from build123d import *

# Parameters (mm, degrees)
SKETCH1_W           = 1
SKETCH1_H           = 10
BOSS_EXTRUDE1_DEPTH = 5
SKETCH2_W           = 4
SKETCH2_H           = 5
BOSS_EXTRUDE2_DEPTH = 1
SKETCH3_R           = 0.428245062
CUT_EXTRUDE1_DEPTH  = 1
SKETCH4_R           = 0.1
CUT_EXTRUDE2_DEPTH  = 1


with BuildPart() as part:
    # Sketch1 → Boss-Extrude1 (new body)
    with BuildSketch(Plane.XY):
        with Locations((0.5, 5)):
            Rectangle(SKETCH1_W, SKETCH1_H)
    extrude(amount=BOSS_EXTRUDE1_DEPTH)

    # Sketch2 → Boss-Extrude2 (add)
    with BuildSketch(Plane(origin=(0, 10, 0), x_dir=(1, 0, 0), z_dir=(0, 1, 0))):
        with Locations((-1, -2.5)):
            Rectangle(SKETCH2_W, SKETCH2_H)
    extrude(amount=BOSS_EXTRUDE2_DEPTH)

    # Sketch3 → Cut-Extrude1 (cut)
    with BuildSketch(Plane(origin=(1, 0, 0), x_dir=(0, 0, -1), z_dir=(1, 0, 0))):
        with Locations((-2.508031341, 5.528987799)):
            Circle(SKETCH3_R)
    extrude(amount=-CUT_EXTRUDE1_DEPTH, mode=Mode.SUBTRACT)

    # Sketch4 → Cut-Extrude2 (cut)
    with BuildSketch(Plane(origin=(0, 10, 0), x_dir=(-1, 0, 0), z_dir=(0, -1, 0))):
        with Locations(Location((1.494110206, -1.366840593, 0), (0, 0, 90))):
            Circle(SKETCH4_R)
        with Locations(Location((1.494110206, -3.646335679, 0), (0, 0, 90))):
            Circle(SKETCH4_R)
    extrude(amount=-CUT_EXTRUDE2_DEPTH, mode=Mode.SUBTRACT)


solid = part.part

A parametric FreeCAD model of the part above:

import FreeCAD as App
import Part
import Sketcher
Q = App.Units.Quantity


def add_polygon(sketch, points):
    """Adds a closed chain of lines whose ends are joined by coincident constraints."""
    first, n = sketch.GeometryCount, len(points)
    for a, b in zip(points, points[1:] + points[:1]):
        sketch.addGeometry(Part.LineSegment(App.Vector(*a, 0), App.Vector(*b, 0)), False)
    for i in range(n):
        sketch.addConstraint(Sketcher.Constraint("Coincident", first + i, 2, first + (i + 1) % n, 1))

doc = App.newDocument("Part")
params = doc.addObject("Spreadsheet::Sheet", "Params")
for row, (alias, value) in enumerate([
    ("sketch1_width", "1 mm"),
    ("sketch1_height", "10 mm"),
    ("pad1_length", "5 mm"),
    ("sketch2_width", "4 mm"),
    ("sketch2_height", "5 mm"),
    ("pad2_length", "1 mm"),
    ("pocket1_length", "1 mm"),
    ("sketch4_diameter", "0.2 mm"),
    ("pocket2_length", "1 mm"),
], start=1):
    params.set(f"A{row}", alias)
    params.set(f"B{row}", "=" + value)
    params.setAlias(f"B{row}", alias)

body = doc.addObject("PartDesign::Body", "Body")

sketch1 = doc.addObject("Sketcher::SketchObject", "Sketch")
body.addObject(sketch1)
sketch1.AttachmentSupport = (doc.XY_Plane, [""])
sketch1.MapMode = "FlatFace"
add_polygon(sketch1, [(0, 10), (0, 0), (1, 0), (1, 10)])
sketch1.addConstraint(Sketcher.Constraint("Vertical", 0))
sketch1.addConstraint(Sketcher.Constraint("Horizontal", 1))
sketch1.addConstraint(Sketcher.Constraint("Vertical", 2))
sketch1.addConstraint(Sketcher.Constraint("Horizontal", 3))
sketch1.addConstraint(Sketcher.Constraint("Coincident", 0, 2, -1, 1))
sketch1.addConstraint(Sketcher.Constraint("DistanceX", 1, 1, 1, 2, Q("1 mm")))
sketch1.addConstraint(Sketcher.Constraint("DistanceY", 0, 2, 0, 1, Q("10 mm")))
sketch1.setExpression("Constraints[9]", "Params.sketch1_width")
sketch1.setExpression("Constraints[10]", "Params.sketch1_height")
pad1 = doc.addObject("PartDesign::Pad", "Pad")
body.addObject(pad1)
pad1.Profile = sketch1
pad1.setExpression("Length", "Params.pad1_length")

sketch2 = doc.addObject("Sketcher::SketchObject", "Sketch001")
body.addObject(sketch2)
sketch2.AttachmentSupport = (doc.XZ_Plane, [""])
sketch2.MapMode = "FlatFace"
sketch2.AttachmentOffset = App.Placement(App.Vector(0, 0, -10), App.Rotation())
add_polygon(sketch2, [(-3, 0), (-3, 5), (1, 5), (1, 0)])
sketch2.addConstraint(Sketcher.Constraint("Vertical", 0))
sketch2.addConstraint(Sketcher.Constraint("Horizontal", 1))
sketch2.addConstraint(Sketcher.Constraint("Vertical", 2))
sketch2.addConstraint(Sketcher.Constraint("Horizontal", 3))
sketch2.addConstraint(Sketcher.Constraint("PointOnObject", 2, 2, -1))
sketch2.addConstraint(Sketcher.Constraint("DistanceX", 1, 1, 1, 2, Q("4 mm")))
sketch2.addConstraint(Sketcher.Constraint("DistanceY", 0, 1, 0, 2, Q("5 mm")))
sketch2.addConstraint(Sketcher.Constraint("DistanceX", 0, 2, -1, 1, Q("3 mm")))
sketch2.setExpression("Constraints[9]", "Params.sketch2_width")
sketch2.setExpression("Constraints[10]", "Params.sketch2_height")
pad2 = doc.addObject("PartDesign::Pad", "Pad001")
body.addObject(pad2)
pad2.Profile = sketch2
pad2.setExpression("Length", "Params.pad2_length")
pad2.Reversed = True

sketch3 = doc.addObject("Sketcher::SketchObject", "Sketch002")
body.addObject(sketch3)
sketch3.AttachmentSupport = (doc.YZ_Plane, [""])
sketch3.MapMode = "FlatFace"
sketch3.AttachmentOffset = App.Placement(App.Vector(0, 0, 1), App.Rotation())
sketch3.addGeometry(Part.Circle(App.Vector(5.528988, 2.508031, 0), App.Vector(0, 0, 1), 0.428245), False)
sketch3.addConstraint(Sketcher.Constraint("Diameter", 0, Q("0.85649 mm")))
sketch3.addConstraint(Sketcher.Constraint("DistanceY", -1, 1, 0, 3, Q("2.508031 mm")))
sketch3.addConstraint(Sketcher.Constraint("DistanceX", -1, 1, 0, 3, Q("5.528988 mm")))
pocket1 = doc.addObject("PartDesign::Pocket", "Pocket")
body.addObject(pocket1)
pocket1.Profile = sketch3
pocket1.setExpression("Length", "Params.pocket1_length")

sketch4 = doc.addObject("Sketcher::SketchObject", "Sketch003")
body.addObject(sketch4)
sketch4.AttachmentSupport = (doc.XZ_Plane, [""])
sketch4.MapMode = "FlatFace"
sketch4.AttachmentOffset = App.Placement(App.Vector(0, 0, -10), App.Rotation())
sketch4.addGeometry(Part.Circle(App.Vector(-1.49411, 1.366841, 0), App.Vector(0, 0, 1), 0.1), False)
sketch4.addGeometry(Part.Circle(App.Vector(-1.49411, 3.646336, 0), App.Vector(0, 0, 1), 0.1), False)
sketch4.addConstraint(Sketcher.Constraint("Equal", 0, 1))
sketch4.addConstraint(Sketcher.Constraint("Vertical", 0, 3, 1, 3))
sketch4.addConstraint(Sketcher.Constraint("Diameter", 0, Q("0.2 mm")))
sketch4.addConstraint(Sketcher.Constraint("DistanceX", 0, 3, -1, 1, Q("1.49411 mm")))
sketch4.addConstraint(Sketcher.Constraint("DistanceY", -1, 1, 0, 3, Q("1.366841 mm")))
sketch4.addConstraint(Sketcher.Constraint("DistanceY", -1, 1, 1, 3, Q("3.646336 mm")))
sketch4.setExpression("Constraints[2]", "Params.sketch4_diameter")
pocket2 = doc.addObject("PartDesign::Pocket", "Pocket001")
body.addObject(pocket2)
pocket2.Profile = sketch4
pocket2.setExpression("Length", "Params.pocket2_length")

doc.recompute()
